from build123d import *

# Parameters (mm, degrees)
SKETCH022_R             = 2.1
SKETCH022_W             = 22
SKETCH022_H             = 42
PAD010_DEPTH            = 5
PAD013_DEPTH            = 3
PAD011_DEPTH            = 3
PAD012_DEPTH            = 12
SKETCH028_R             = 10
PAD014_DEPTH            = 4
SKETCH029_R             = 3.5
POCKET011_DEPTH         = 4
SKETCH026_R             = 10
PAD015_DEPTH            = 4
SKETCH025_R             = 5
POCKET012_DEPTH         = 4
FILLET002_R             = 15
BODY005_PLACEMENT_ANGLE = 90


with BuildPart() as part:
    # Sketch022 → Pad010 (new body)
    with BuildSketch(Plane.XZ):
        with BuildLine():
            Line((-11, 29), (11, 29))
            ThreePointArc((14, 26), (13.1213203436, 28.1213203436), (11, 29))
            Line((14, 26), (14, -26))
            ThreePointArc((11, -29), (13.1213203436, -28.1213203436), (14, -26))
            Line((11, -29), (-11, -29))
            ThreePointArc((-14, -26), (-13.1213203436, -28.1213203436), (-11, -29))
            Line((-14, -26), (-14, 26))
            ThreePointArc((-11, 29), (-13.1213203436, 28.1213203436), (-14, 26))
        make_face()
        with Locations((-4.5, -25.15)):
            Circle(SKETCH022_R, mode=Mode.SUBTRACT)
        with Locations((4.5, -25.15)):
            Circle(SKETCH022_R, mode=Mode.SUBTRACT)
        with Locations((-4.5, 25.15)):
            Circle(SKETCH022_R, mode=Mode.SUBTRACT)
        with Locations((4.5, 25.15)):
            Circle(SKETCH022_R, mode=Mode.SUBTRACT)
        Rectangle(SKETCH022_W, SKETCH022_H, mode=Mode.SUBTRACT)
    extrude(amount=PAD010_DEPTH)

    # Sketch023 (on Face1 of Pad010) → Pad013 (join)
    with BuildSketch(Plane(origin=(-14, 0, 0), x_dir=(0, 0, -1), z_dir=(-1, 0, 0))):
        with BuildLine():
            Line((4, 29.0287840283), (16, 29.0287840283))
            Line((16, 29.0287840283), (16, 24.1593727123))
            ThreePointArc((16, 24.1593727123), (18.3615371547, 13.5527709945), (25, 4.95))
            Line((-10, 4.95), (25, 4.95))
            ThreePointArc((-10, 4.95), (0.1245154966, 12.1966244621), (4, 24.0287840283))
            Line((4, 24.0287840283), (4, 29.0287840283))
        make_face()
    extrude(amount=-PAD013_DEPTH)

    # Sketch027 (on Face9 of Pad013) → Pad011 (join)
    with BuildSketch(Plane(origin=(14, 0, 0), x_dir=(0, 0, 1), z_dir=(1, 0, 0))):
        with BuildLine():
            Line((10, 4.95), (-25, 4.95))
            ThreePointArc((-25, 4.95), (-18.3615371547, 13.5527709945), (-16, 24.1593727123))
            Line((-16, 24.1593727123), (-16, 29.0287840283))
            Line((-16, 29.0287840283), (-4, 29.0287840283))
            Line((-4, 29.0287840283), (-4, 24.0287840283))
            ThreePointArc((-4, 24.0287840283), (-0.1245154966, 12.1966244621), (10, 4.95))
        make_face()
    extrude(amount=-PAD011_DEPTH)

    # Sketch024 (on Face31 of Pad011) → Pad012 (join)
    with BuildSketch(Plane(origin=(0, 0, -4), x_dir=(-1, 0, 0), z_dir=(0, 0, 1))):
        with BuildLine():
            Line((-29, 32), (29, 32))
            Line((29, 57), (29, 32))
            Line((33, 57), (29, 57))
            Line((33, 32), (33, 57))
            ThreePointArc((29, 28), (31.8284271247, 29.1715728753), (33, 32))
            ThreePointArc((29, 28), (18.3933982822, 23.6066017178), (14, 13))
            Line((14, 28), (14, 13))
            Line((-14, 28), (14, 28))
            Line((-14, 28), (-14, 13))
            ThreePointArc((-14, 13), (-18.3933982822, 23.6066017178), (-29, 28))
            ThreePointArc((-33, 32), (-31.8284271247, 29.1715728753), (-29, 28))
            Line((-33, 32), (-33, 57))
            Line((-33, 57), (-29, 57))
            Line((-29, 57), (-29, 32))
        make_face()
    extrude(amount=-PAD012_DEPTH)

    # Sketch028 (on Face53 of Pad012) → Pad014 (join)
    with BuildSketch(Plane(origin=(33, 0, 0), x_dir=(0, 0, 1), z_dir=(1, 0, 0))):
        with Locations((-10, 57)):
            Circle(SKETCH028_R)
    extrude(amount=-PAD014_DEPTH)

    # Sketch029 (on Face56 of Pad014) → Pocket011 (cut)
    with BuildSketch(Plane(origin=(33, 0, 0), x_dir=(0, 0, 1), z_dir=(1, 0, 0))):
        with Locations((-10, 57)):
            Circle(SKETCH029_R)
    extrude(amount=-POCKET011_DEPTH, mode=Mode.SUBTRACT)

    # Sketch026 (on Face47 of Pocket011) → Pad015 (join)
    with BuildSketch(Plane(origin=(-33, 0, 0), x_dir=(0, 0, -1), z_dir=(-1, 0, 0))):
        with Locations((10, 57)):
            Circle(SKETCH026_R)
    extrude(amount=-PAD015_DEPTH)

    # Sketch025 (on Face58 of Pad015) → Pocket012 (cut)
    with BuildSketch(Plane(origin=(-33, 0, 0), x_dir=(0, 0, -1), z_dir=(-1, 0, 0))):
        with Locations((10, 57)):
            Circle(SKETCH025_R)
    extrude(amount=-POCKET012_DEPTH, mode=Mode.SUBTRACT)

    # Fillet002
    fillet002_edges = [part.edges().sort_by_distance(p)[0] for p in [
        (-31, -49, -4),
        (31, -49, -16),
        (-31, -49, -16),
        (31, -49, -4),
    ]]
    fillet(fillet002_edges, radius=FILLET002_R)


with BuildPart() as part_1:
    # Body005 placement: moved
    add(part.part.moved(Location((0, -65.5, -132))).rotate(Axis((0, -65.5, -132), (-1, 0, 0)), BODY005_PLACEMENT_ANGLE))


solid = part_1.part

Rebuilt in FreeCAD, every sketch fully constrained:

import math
import FreeCAD as App
import Part
import Sketcher


def edges_at(feature, points):
    """Names of the edges that pass closest to the given points."""
    edges = feature.Shape.Edges
    near = lambda p: min(range(len(edges)), key=lambda i: edges[i].distToShape(Part.Vertex(*p))[0])
    return sorted({f"Edge{near(p) + 1}" for p in points})

doc = App.newDocument("Part")
params = doc.addObject("Spreadsheet::Sheet", "Params")
for row, (alias, value) in enumerate([
    ("sketch1_radius", "3 mm"),
    ("sketch1_diameter", "4.2 mm"),
    ("sketch1_width", "22 mm"),
    ("sketch1_height", "52 mm"),
    ("sketch1_height2", "42 mm"),
    ("pad1_length", "5 mm"),
    ("sketch2_radius", "20 mm"),
    ("sketch2_radius2", "25 mm"),
    ("sketch2_width", "5 mm"),
    ("sketch2_height", "12 mm"),
    ("sketch2_height2", "35 mm"),
    ("pad2_length", "3 mm"),
    ("sketch3_radius", "20 mm"),
    ("sketch3_radius2", "25 mm"),
    ("sketch3_width", "5 mm"),
    ("sketch3_height", "35 mm"),
    ("sketch3_height2", "12 mm"),
    ("pad3_length", "3 mm"),
    ("sketch4_radius", "4 mm"),
    ("sketch4_radius2", "15 mm"),
    ("sketch4_width", "58 mm"),
    ("sketch4_height", "25 mm"),
    ("pad4_length", "12 mm"),
    ("sketch5_diameter", "20 mm"),
    ("pad5_length", "4 mm"),
    ("sketch6_diameter", "7 mm"),
    ("pocket1_length", "4 mm"),
    ("sketch7_diameter", "20 mm"),
    ("pad6_length", "4 mm"),
    ("sketch8_diameter", "10 mm"),
    ("pocket2_length", "4 mm"),
    ("fillet_radius", "15 mm"),
], start=1):
    params.set(f"A{row}", alias)
    params.set(f"B{row}", "=" + value)
    params.setAlias(f"B{row}", alias)

body = doc.addObject("PartDesign::Body", "Body")

sketch1 = body.newObject("Sketcher::SketchObject", "Sketch")
sketch1.AttachmentSupport = (doc.getObject("XZ_Plane"), [""])
sketch1.MapMode = "FlatFace"
sketch1.addGeometry(Part.LineSegment(App.Vector(11, 29, 0), App.Vector(-11, 29, 0)), False)
sketch1.addGeometry(Part.ArcOfCircle(Part.Circle(App.Vector(-11, 26, 0), App.Vector(0, 0, 1), 3), math.radians(90), math.radians(180)), False)
sketch1.addGeometry(Part.LineSegment(App.Vector(-14, 26, 0), App.Vector(-14, -26, 0)), False)
sketch1.addGeometry(Part.ArcOfCircle(Part.Circle(App.Vector(-11, -26, 0), App.Vector(0, 0, 1), 3), math.radians(180), math.radians(270)), False)
sketch1.addGeometry(Part.LineSegment(App.Vector(-11, -29, 0), App.Vector(11, -29, 0)), False)
sketch1.addGeometry(Part.ArcOfCircle(Part.Circle(App.Vector(11, -26, 0), App.Vector(0, 0, 1), 3), math.radians(-90), math.radians(0)), False)
sketch1.addGeometry(Part.LineSegment(App.Vector(14, -26, 0), App.Vector(14, 26, 0)), False)
sketch1.addGeometry(Part.ArcOfCircle(Part.Circle(App.Vector(11, 26, 0), App.Vector(0, 0, 1), 3), math.radians(0), math.radians(90)), False)
sketch1.addGeometry(Part.Circle(App.Vector(4.5, -25.1, 0), App.Vector(0, 0, 1), 2.1), False)
sketch1.addGeometry(Part.Circle(App.Vector(-4.5, -25.1, 0), App.Vector(0, 0, 1), 2.1), False)
sketch1.addGeometry(Part.Circle(App.Vector(4.5, 25.1, 0), App.Vector(0, 0, 1), 2.1), False)
sketch1.addGeometry(Part.LineSegment(App.Vector(-11, -21, 0), App.Vector(-11, 21, 0)), False)
sketch1.addGeometry(Part.LineSegment(App.Vector(-11, 21, 0), App.Vector(11, 21, 0)), False)
sketch1.addGeometry(Part.LineSegment(App.Vector(11, 21, 0), App.Vector(11, -21, 0)), False)
sketch1.addGeometry(Part.LineSegment(App.Vector(11, -21, 0), App.Vector(-11, -21, 0)), False)
sketch1.addGeometry(Part.Circle(App.Vector(-4.5, 25.1, 0), App.Vector(0, 0, 1), 2.1), False)
sketch1.addConstraint(Sketcher.Constraint("Tangent", 0, 2, 1, 1))
sketch1.addConstraint(Sketcher.Constraint("Tangent", 1, 2, 2, 1))
sketch1.addConstraint(Sketcher.Constraint("Tangent", 2, 2, 3, 1))
sketch1.addConstraint(Sketcher.Constraint("Tangent", 3, 2, 4, 1))
sketch1.addConstraint(Sketcher.Constraint("Tangent", 4, 2, 5, 1))
sketch1.addConstraint(Sketcher.Constraint("Tangent", 5, 2, 6, 1))
sketch1.addConstraint(Sketcher.Constraint("Tangent", 6, 2, 7, 1))
sketch1.addConstraint(Sketcher.Constraint("Tangent", 7, 2, 0, 1))
sketch1.addConstraint(Sketcher.Constraint("Coincident", 11, 2, 12, 1))
sketch1.addConstraint(Sketcher.Constraint("Coincident", 12, 2, 13, 1))
sketch1.addConstraint(Sketcher.Constraint("Coincident", 13, 2, 14, 1))
sketch1.addConstraint(Sketcher.Constraint("Coincident", 14, 2, 11, 1))
sketch1.addConstraint(Sketcher.Constraint("Horizontal", 0))
sketch1.addConstraint(Sketcher.Constraint("Vertical", 2))
sketch1.addConstraint(Sketcher.Constraint("Horizontal", 4))
sketch1.addConstraint(Sketcher.Constraint("Vertical", 6))
sketch1.addConstraint(Sketcher.Constraint("Vertical", 11))
sketch1.addConstraint(Sketcher.Constraint("Horizontal", 12))
sketch1.addConstraint(Sketcher.Constraint("Vertical", 13))
sketch1.addConstraint(Sketcher.Constraint("Horizontal", 14))
sketch1.addConstraint(Sketcher.Constraint("Equal", 1, 3))
sketch1.addConstraint(Sketcher.Constraint("Equal", 3, 5))
sketch1.addConstraint(Sketcher.Constraint("Equal", 5, 7))
sketch1.addConstraint(Sketcher.Constraint("Equal", 8, 9))
sketch1.addConstraint(Sketcher.Constraint("Equal", 9, 10))
sketch1.addConstraint(Sketcher.Constraint("Equal", 10, 15))
sketch1.addConstraint(Sketcher.Constraint("Symmetric", 1, 3, 5, 3, -1, 1))
sketch1.addConstraint(Sketcher.Constraint("Symmetric", 9, 3, 10, 3, -1, 1))
sketch1.addConstraint(Sketcher.Constraint("Symmetric", 8, 3, 15, 3, -1, 1))
sketch1.addConstraint(Sketcher.Constraint("Symmetric", 11, 2, 13, 2, -1, 1))
sketch1.addConstraint(Sketcher.Constraint("Symmetric", 8, 3, 9, 3, -2))
sketch1.addConstraint(Sketcher.Constraint("Vertical", 3, 2, 11, 2))
sketch1.addConstraint(Sketcher.Constraint("Radius", 1, 3.0))
sketch1.addConstraint(Sketcher.Constraint("Diameter", 8, 4.2))
sketch1.addConstraint(Sketcher.Constraint("DistanceX", 0, 2, 0, 1, 22.0))
sketch1.addConstraint(Sketcher.Constraint("DistanceY", 2, 2, 2, 1, 52.0))
sketch1.addConstraint(Sketcher.Constraint("DistanceY", 11, 1, 11, 2, 42.0))
sketch1.addConstraint(Sketcher.Constraint("DistanceX", 9, 3, 8, 3, 9.0))
sketch1.addConstraint(Sketcher.Constraint("DistanceY", 8, 3, 10, 3, 50.3))
sketch1.setExpression("Constraints[32]", "Params.sketch1_radius")
sketch1.setExpression("Constraints[33]", "Params.sketch1_diameter")
sketch1.setExpression("Constraints[34]", "Params.sketch1_width")
sketch1.setExpression("Constraints[35]", "Params.sketch1_height")
sketch1.setExpression("Constraints[36]", "Params.sketch1_height2")
pad1 = body.newObject("PartDesign::Pad", "Pad")
pad1.Profile = sketch1
pad1.setExpression("Length", "Params.pad1_length")

sketch2 = body.newObject("Sketcher::SketchObject", "Sketch001")
sketch2.AttachmentSupport = (doc.getObject("YZ_Plane"), [""])
sketch2.MapMode = "FlatFace"
sketch2.AttachmentOffset = App.Placement(App.Vector(0, 0, -14), App.Rotation())
sketch2.addGeometry(Part.LineSegment(App.Vector(-29, -16, 0), App.Vector(-29, -4, 0)), False)
sketch2.addGeometry(Part.LineSegment(App.Vector(-29, -4, 0), App.Vector(-24, -4, 0)), False)
sketch2.addGeometry(Part.ArcOfCircle(Part.Circle(App.Vector(-24, 16, 0), App.Vector(0, 0, 1), 20), math.radians(-90), math.radians(-17)), False)
sketch2.addGeometry(Part.LineSegment(App.Vector(-5, 10, 0), App.Vector(-5, -25, 0)), False)
sketch2.addGeometry(Part.ArcOfCircle(Part.Circle(App.Vector(-24.2, -41, 0), App.Vector(0, 0, 1), 25), math.radians(40), math.radians(90)), False)
sketch2.addGeometry(Part.LineSegment(App.Vector(-24.2, -16, 0), App.Vector(-29, -16, 0)), False)
sketch2.addConstraint(Sketcher.Constraint("Coincident", 0, 2, 1, 1))
sketch2.addConstraint(Sketcher.Constraint("Tangent", 1, 2, 2, 1))
sketch2.addConstraint(Sketcher.Constraint("Coincident", 2, 2, 3, 1))
sketch2.addConstraint(Sketcher.Constraint("Coincident", 3, 2, 4, 1))
sketch2.addConstraint(Sketcher.Constraint("Tangent", 4, 2, 5, 1))
sketch2.addConstraint(Sketcher.Constraint("Coincident", 5, 2, 0, 1))
sketch2.addConstraint(Sketcher.Constraint("Vertical", 0))
sketch2.addConstraint(Sketcher.Constraint("Horizontal", 1))
sketch2.addConstraint(Sketcher.Constraint("Vertical", 3))
sketch2.addConstraint(Sketcher.Constraint("Horizontal", 5))
sketch2.addConstraint(Sketcher.Constraint("Radius", 2, 20.0))
sketch2.addConstraint(Sketcher.Constraint("Radius", 4, 25.0))
sketch2.addConstraint(Sketcher.Constraint("DistanceX", 1, 1, 1, 2, 5.0))
sketch2.addConstraint(Sketcher.Constraint("DistanceY", 0, 1, 0, 2, 12.0))
sketch2.addConstraint(Sketcher.Constraint("DistanceY", 3, 2, 3, 1, 35.0))
sketch2.addConstraint(Sketcher.Constraint("DistanceY", -1, 1, 2, 3, 16.0))
sketch2.addConstraint(Sketcher.Constraint("DistanceY", -1, 1, 2, 2, 10.0))
sketch2.addConstraint(Sketcher.Constraint("DistanceX", 2, 2, -1, 1, 4.95))
sketch2.setExpression("Constraints[10]", "Params.sketch2_radius")
sketch2.setExpression("Constraints[11]", "Params.sketch2_radius2")
sketch2.setExpression("Constraints[12]", "Params.sketch2_width")
sketch2.setExpression("Constraints[13]", "Params.sketch2_height")
sketch2.setExpression("Constraints[14]", "Params.sketch2_height2")
pad2 = body.newObject("PartDesign::Pad", "Pad001")
pad2.Profile = sketch2
pad2.setExpression("Length", "Params.pad2_length")

sketch3 = body.newObject("Sketcher::SketchObject", "Sketch002")
sketch3.AttachmentSupport = (doc.getObject("YZ_Plane"), [""])
sketch3.MapMode = "FlatFace"
sketch3.AttachmentOffset = App.Placement(App.Vector(0, 0, 14), App.Rotation())
sketch3.addGeometry(Part.LineSegment(App.Vector(-5, -25, 0), App.Vector(-5, 10, 0)), False)
sketch3.addGeometry(Part.ArcOfCircle(Part.Circle(App.Vector(-24, 16, 0), App.Vector(0, 0, 1), 20), math.radians(-90), math.radians(-17)), False)
sketch3.addGeometry(Part.LineSegment(App.Vector(-24, -4, 0), App.Vector(-29, -4, 0)), False)
sketch3.addGeometry(Part.LineSegment(App.Vector(-29, -4, 0), App.Vector(-29, -16, 0)), False)
sketch3.addGeometry(Part.LineSegment(App.Vector(-29, -16, 0), App.Vector(-24.2, -16, 0)), False)
sketch3.addGeometry(Part.ArcOfCircle(Part.Circle(App.Vector(-24.2, -41, 0), App.Vector(0, 0, 1), 25), math.radians(40), math.radians(90)), False)
sketch3.addConstraint(Sketcher.Constraint("Coincident", 0, 2, 1, 2))
sketch3.addConstraint(Sketcher.Constraint("Tangent", 1, 1, 2, 1))
sketch3.addConstraint(Sketcher.Constraint("Coincident", 2, 2, 3, 1))
sketch3.addConstraint(Sketcher.Constraint("Coincident", 3, 2, 4, 1))
sketch3.addConstraint(Sketcher.Constraint("Tangent", 4, 2, 5, 2))
sketch3.addConstraint(Sketcher.Constraint("Coincident", 5, 1, 0, 1))
sketch3.addConstraint(Sketcher.Constraint("Vertical", 0))
sketch3.addConstraint(Sketcher.Constraint("Horizontal", 2))
sketch3.addConstraint(Sketcher.Constraint("Vertical", 3))
sketch3.addConstraint(Sketcher.Constraint("Horizontal", 4))
sketch3.addConstraint(Sketcher.Constraint("Radius", 1, 20.0))
sketch3.addConstraint(Sketcher.Constraint("Radius", 5, 25.0))
sketch3.addConstraint(Sketcher.Constraint("DistanceX", 2, 2, 2, 1, 5.0))
sketch3.addConstraint(Sketcher.Constraint("DistanceY", 0, 1, 0, 2, 35.0))
sketch3.addConstraint(Sketcher.Constraint("DistanceY", 3, 2, 3, 1, 12.0))
sketch3.addConstraint(Sketcher.Constraint("DistanceY", -1, 1, 1, 3, 16.0))
sketch3.addConstraint(Sketcher.Constraint("DistanceY", -1, 1, 0, 2, 10.0))
sketch3.addConstraint(Sketcher.Constraint("DistanceX", 0, 2, -1, 1, 4.95))
sketch3.setExpression("Constraints[10]", "Params.sketch3_radius")
sketch3.setExpression("Constraints[11]", "Params.sketch3_radius2")
sketch3.setExpression("Constraints[12]", "Params.sketch3_width")
sketch3.setExpression("Constraints[13]", "Params.sketch3_height")
sketch3.setExpression("Constraints[14]", "Params.sketch3_height2")
pad3 = body.newObject("PartDesign::Pad", "Pad002")
pad3.Profile = sketch3
pad3.setExpression("Length", "Params.pad3_length")
pad3.Reversed = True

sketch4 = body.newObject("Sketcher::SketchObject", "Sketch003")
sketch4.AttachmentSupport = (doc.getObject("XY_Plane"), [""])
sketch4.MapMode = "FlatFace"
sketch4.AttachmentOffset = App.Placement(App.Vector(0, 0, -4), App.Rotation())
sketch4.addGeometry(Part.LineSegment(App.Vector(-29, -32, 0), App.Vector(29, -32, 0)), False)
sketch4.addGeometry(Part.LineSegment(App.Vector(29, -32, 0), App.Vector(29, -57, 0)), False)
sketch4.addGeometry(Part.LineSegment(App.Vector(29, -57, 0), App.Vector(33, -57, 0)), False)
sketch4.addGeometry(Part.LineSegment(App.Vector(33, -57, 0), App.Vector(33, -32, 0)), False)
sketch4.addGeometry(Part.ArcOfCircle(Part.Circle(App.Vector(29, -32, 0), App.Vector(0, 0, 1), 4), math.radians(0), math.radians(90)), False)
sketch4.addGeometry(Part.ArcOfCircle(Part.Circle(App.Vector(29, -13, 0), App.Vector(0, 0, 1), 15), math.radians(180), math.radians(270)), False)
sketch4.addGeometry(Part.LineSegment(App.Vector(14, -13, 0), App.Vector(14, -28, 0)), False)
sketch4.addGeometry(Part.LineSegment(App.Vector(14, -28, 0), App.Vector(-14, -28, 0)), False)
sketch4.addGeometry(Part.LineSegment(App.Vector(-14, -28, 0), App.Vector(-14, -13, 0)), False)
sketch4.addGeometry(Part.ArcOfCircle(Part.Circle(App.Vector(-29, -13, 0), App.Vector(0, 0, 1), 15), math.radians(-90), math.radians(0)), False)
sketch4.addGeometry(Part.ArcOfCircle(Part.Circle(App.Vector(-29, -32, 0), App.Vector(0, 0, 1), 4), math.radians(90), math.radians(180)), False)
sketch4.addGeometry(Part.LineSegment(App.Vector(-33, -32, 0), App.Vector(-33, -57, 0)), False)
sketch4.addGeometry(Part.LineSegment(App.Vector(-33, -57, 0), App.Vector(-29, -57, 0)), False)
sketch4.addGeometry(Part.LineSegment(App.Vector(-29, -57, 0), App.Vector(-29, -32, 0)), False)
sketch4.addConstraint(Sketcher.Constraint("Coincident", 0, 2, 1, 1))
sketch4.addConstraint(Sketcher.Constraint("Coincident", 1, 2, 2, 1))
sketch4.addConstraint(Sketcher.Constraint("Coincident", 2, 2, 3, 1))
sketch4.addConstraint(Sketcher.Constraint("Tangent", 3, 2, 4, 1))
sketch4.addConstraint(Sketcher.Constraint("Tangent", 4, 2, 5, 2))
sketch4.addConstraint(Sketcher.Constraint("Tangent", 5, 1, 6, 1))
sketch4.addConstraint(Sketcher.Constraint("Coincident", 6, 2, 7, 1))
sketch4.addConstraint(Sketcher.Constraint("Coincident", 7, 2, 8, 1))
sketch4.addConstraint(Sketcher.Constraint("Tangent", 8, 2, 9, 2))
sketch4.addConstraint(Sketcher.Constraint("Tangent", 9, 1, 10, 1))
sketch4.addConstraint(Sketcher.Constraint("Tangent", 10, 2, 11, 1))
sketch4.addConstraint(Sketcher.Constraint("Coincident", 11, 2, 12, 1))
sketch4.addConstraint(Sketcher.Constraint("Coincident", 12, 2, 13, 1))
sketch4.addConstraint(Sketcher.Constraint("Coincident", 13, 2, 0, 1))
sketch4.addConstraint(Sketcher.Constraint("Horizontal", 0))
sketch4.addConstraint(Sketcher.Constraint("Vertical", 1))
sketch4.addConstraint(Sketcher.Constraint("Horizontal", 2))
sketch4.addConstraint(Sketcher.Constraint("Vertical", 3))
sketch4.addConstraint(Sketcher.Constraint("Vertical", 6))
sketch4.addConstraint(Sketcher.Constraint("Horizontal", 7))
sketch4.addConstraint(Sketcher.Constraint("Vertical", 8))
sketch4.addConstraint(Sketcher.Constraint("Vertical", 11))
sketch4.addConstraint(Sketcher.Constraint("Horizontal", 12))
sketch4.addConstraint(Sketcher.Constraint("Vertical", 13))
sketch4.addConstraint(Sketcher.Constraint("Coincident", 0, 2, 4, 3))
sketch4.addConstraint(Sketcher.Constraint("Coincident", 13, 2, 10, 3))
sketch4.addConstraint(Sketcher.Constraint("Equal", 5, 9))
sketch4.addConstraint(Sketcher.Constraint("Equal", 4, 10))
sketch4.addConstraint(Sketcher.Constraint("Symmetric", 2, 2, 11, 2, -2))
sketch4.addConstraint(Sketcher.Constraint("Horizontal", 4, 2, 6, 2))
sketch4.addConstraint(Sketcher.Constraint("Vertical", 4, 3, 5, 3))
sketch4.addConstraint(Sketcher.Constraint("Vertical", 9, 3, 10, 3))
sketch4.addConstraint(Sketcher.Constraint("Radius", 4, 4.0))
sketch4.addConstraint(Sketcher.Constraint("Radius", 5, 15.0))
sketch4.addConstraint(Sketcher.Constraint("DistanceX", 0, 1, 0, 2, 58.0))
sketch4.addConstraint(Sketcher.Constraint("DistanceY", 1, 2, 1, 1, 25.0))
sketch4.addConstraint(Sketcher.Constraint("DistanceY", 4, 3, -1, 1, 32.0))
sketch4.setExpression("Constraints[32]", "Params.sketch4_radius")
sketch4.setExpression("Constraints[33]", "Params.sketch4_radius2")
sketch4.setExpression("Constraints[34]", "Params.sketch4_width")
sketch4.setExpression("Constraints[35]", "Params.sketch4_height")
pad4 = body.newObject("PartDesign::Pad", "Pad003")
pad4.Profile = sketch4
pad4.setExpression("Length", "Params.pad4_length")
pad4.Reversed = True

sketch5 = body.newObject("Sketcher::SketchObject", "Sketch004")
sketch5.AttachmentSupport = (doc.getObject("YZ_Plane"), [""])
sketch5.MapMode = "FlatFace"
sketch5.AttachmentOffset = App.Placement(App.Vector(0, 0, 33), App.Rotation())
sketch5.addGeometry(Part.Circle(App.Vector(-57, -10, 0), App.Vector(0, 0, 1), 10), False)
sketch5.addConstraint(Sketcher.Constraint("Diameter", 0, 20.0))
sketch5.addConstraint(Sketcher.Constraint("DistanceX", 0, 3, -1, 1, 57.0))
sketch5.addConstraint(Sketcher.Constraint("DistanceY", 0, 3, -1, 1, 10.0))
sketch5.setExpression("Constraints[0]", "Params.sketch5_diameter")
pad5 = body.newObject("PartDesign::Pad", "Pad004")
pad5.Profile = sketch5
pad5.setExpression("Length", "Params.pad5_length")
pad5.Reversed = True

sketch6 = body.newObject("Sketcher::SketchObject", "Sketch005")
sketch6.AttachmentSupport = (doc.getObject("YZ_Plane"), [""])
sketch6.MapMode = "FlatFace"
sketch6.AttachmentOffset = App.Placement(App.Vector(0, 0, 33), App.Rotation())
sketch6.addGeometry(Part.Circle(App.Vector(-57, -10, 0), App.Vector(0, 0, 1), 3.5), False)
sketch6.addConstraint(Sketcher.Constraint("Diameter", 0, 7.0))
sketch6.addConstraint(Sketcher.Constraint("DistanceX", 0, 3, -1, 1, 57.0))
sketch6.addConstraint(Sketcher.Constraint("DistanceY", 0, 3, -1, 1, 10.0))
sketch6.setExpression("Constraints[0]", "Params.sketch6_diameter")
pocket1 = body.newObject("PartDesign::Pocket", "Pocket")
pocket1.Profile = sketch6
pocket1.setExpression("Length", "Params.pocket1_length")

sketch7 = body.newObject("Sketcher::SketchObject", "Sketch006")
sketch7.AttachmentSupport = (doc.getObject("YZ_Plane"), [""])
sketch7.MapMode = "FlatFace"
sketch7.AttachmentOffset = App.Placement(App.Vector(0, 0, -33), App.Rotation())
sketch7.addGeometry(Part.Circle(App.Vector(-57, -10, 0), App.Vector(0, 0, 1), 10), False)
sketch7.addConstraint(Sketcher.Constraint("Diameter", 0, 20.0))
sketch7.addConstraint(Sketcher.Constraint("DistanceX", 0, 3, -1, 1, 57.0))
sketch7.addConstraint(Sketcher.Constraint("DistanceY", 0, 3, -1, 1, 10.0))
sketch7.setExpression("Constraints[0]", "Params.sketch7_diameter")
pad6 = body.newObject("PartDesign::Pad", "Pad005")
pad6.Profile = sketch7
pad6.setExpression("Length", "Params.pad6_length")

sketch8 = body.newObject("Sketcher::SketchObject", "Sketch007")
sketch8.AttachmentSupport = (doc.getObject("YZ_Plane"), [""])
sketch8.MapMode = "FlatFace"
sketch8.AttachmentOffset = App.Placement(App.Vector(0, 0, -33), App.Rotation())
sketch8.addGeometry(Part.Circle(App.Vector(-57, -10, 0), App.Vector(0, 0, 1), 5), False)
sketch8.addConstraint(Sketcher.Constraint("Diameter", 0, 10.0))
sketch8.addConstraint(Sketcher.Constraint("DistanceX", 0, 3, -1, 1, 57.0))
sketch8.addConstraint(Sketcher.Constraint("DistanceY", 0, 3, -1, 1, 10.0))
sketch8.setExpression("Constraints[0]", "Params.sketch8_diameter")
pocket2 = body.newObject("PartDesign::Pocket", "Pocket001")
pocket2.Profile = sketch8
pocket2.setExpression("Length", "Params.pocket2_length")
pocket2.Reversed = True
doc.recompute()

fillet = body.newObject("PartDesign::Fillet", "Fillet")
fillet.Base = (pocket2, edges_at(pocket2, [
    (-31, -49, -4),
    (31, -49, -16),
    (-31, -49, -16),
    (31, -49, -4),
]))
fillet.setExpression("Radius", "Params.fillet_radius")
body2 = doc.addObject("PartDesign::Body", "Body001")
doc.recompute()

body.Placement = App.Placement(App.Vector(0, -65.5, -132), App.Rotation(App.Vector(-1, 0, 0), 90))
boolean = body2.newObject("PartDesign::Boolean", "Boolean")
boolean.Type = "Fuse"
boolean.addObjects([body])

doc.recompute()
